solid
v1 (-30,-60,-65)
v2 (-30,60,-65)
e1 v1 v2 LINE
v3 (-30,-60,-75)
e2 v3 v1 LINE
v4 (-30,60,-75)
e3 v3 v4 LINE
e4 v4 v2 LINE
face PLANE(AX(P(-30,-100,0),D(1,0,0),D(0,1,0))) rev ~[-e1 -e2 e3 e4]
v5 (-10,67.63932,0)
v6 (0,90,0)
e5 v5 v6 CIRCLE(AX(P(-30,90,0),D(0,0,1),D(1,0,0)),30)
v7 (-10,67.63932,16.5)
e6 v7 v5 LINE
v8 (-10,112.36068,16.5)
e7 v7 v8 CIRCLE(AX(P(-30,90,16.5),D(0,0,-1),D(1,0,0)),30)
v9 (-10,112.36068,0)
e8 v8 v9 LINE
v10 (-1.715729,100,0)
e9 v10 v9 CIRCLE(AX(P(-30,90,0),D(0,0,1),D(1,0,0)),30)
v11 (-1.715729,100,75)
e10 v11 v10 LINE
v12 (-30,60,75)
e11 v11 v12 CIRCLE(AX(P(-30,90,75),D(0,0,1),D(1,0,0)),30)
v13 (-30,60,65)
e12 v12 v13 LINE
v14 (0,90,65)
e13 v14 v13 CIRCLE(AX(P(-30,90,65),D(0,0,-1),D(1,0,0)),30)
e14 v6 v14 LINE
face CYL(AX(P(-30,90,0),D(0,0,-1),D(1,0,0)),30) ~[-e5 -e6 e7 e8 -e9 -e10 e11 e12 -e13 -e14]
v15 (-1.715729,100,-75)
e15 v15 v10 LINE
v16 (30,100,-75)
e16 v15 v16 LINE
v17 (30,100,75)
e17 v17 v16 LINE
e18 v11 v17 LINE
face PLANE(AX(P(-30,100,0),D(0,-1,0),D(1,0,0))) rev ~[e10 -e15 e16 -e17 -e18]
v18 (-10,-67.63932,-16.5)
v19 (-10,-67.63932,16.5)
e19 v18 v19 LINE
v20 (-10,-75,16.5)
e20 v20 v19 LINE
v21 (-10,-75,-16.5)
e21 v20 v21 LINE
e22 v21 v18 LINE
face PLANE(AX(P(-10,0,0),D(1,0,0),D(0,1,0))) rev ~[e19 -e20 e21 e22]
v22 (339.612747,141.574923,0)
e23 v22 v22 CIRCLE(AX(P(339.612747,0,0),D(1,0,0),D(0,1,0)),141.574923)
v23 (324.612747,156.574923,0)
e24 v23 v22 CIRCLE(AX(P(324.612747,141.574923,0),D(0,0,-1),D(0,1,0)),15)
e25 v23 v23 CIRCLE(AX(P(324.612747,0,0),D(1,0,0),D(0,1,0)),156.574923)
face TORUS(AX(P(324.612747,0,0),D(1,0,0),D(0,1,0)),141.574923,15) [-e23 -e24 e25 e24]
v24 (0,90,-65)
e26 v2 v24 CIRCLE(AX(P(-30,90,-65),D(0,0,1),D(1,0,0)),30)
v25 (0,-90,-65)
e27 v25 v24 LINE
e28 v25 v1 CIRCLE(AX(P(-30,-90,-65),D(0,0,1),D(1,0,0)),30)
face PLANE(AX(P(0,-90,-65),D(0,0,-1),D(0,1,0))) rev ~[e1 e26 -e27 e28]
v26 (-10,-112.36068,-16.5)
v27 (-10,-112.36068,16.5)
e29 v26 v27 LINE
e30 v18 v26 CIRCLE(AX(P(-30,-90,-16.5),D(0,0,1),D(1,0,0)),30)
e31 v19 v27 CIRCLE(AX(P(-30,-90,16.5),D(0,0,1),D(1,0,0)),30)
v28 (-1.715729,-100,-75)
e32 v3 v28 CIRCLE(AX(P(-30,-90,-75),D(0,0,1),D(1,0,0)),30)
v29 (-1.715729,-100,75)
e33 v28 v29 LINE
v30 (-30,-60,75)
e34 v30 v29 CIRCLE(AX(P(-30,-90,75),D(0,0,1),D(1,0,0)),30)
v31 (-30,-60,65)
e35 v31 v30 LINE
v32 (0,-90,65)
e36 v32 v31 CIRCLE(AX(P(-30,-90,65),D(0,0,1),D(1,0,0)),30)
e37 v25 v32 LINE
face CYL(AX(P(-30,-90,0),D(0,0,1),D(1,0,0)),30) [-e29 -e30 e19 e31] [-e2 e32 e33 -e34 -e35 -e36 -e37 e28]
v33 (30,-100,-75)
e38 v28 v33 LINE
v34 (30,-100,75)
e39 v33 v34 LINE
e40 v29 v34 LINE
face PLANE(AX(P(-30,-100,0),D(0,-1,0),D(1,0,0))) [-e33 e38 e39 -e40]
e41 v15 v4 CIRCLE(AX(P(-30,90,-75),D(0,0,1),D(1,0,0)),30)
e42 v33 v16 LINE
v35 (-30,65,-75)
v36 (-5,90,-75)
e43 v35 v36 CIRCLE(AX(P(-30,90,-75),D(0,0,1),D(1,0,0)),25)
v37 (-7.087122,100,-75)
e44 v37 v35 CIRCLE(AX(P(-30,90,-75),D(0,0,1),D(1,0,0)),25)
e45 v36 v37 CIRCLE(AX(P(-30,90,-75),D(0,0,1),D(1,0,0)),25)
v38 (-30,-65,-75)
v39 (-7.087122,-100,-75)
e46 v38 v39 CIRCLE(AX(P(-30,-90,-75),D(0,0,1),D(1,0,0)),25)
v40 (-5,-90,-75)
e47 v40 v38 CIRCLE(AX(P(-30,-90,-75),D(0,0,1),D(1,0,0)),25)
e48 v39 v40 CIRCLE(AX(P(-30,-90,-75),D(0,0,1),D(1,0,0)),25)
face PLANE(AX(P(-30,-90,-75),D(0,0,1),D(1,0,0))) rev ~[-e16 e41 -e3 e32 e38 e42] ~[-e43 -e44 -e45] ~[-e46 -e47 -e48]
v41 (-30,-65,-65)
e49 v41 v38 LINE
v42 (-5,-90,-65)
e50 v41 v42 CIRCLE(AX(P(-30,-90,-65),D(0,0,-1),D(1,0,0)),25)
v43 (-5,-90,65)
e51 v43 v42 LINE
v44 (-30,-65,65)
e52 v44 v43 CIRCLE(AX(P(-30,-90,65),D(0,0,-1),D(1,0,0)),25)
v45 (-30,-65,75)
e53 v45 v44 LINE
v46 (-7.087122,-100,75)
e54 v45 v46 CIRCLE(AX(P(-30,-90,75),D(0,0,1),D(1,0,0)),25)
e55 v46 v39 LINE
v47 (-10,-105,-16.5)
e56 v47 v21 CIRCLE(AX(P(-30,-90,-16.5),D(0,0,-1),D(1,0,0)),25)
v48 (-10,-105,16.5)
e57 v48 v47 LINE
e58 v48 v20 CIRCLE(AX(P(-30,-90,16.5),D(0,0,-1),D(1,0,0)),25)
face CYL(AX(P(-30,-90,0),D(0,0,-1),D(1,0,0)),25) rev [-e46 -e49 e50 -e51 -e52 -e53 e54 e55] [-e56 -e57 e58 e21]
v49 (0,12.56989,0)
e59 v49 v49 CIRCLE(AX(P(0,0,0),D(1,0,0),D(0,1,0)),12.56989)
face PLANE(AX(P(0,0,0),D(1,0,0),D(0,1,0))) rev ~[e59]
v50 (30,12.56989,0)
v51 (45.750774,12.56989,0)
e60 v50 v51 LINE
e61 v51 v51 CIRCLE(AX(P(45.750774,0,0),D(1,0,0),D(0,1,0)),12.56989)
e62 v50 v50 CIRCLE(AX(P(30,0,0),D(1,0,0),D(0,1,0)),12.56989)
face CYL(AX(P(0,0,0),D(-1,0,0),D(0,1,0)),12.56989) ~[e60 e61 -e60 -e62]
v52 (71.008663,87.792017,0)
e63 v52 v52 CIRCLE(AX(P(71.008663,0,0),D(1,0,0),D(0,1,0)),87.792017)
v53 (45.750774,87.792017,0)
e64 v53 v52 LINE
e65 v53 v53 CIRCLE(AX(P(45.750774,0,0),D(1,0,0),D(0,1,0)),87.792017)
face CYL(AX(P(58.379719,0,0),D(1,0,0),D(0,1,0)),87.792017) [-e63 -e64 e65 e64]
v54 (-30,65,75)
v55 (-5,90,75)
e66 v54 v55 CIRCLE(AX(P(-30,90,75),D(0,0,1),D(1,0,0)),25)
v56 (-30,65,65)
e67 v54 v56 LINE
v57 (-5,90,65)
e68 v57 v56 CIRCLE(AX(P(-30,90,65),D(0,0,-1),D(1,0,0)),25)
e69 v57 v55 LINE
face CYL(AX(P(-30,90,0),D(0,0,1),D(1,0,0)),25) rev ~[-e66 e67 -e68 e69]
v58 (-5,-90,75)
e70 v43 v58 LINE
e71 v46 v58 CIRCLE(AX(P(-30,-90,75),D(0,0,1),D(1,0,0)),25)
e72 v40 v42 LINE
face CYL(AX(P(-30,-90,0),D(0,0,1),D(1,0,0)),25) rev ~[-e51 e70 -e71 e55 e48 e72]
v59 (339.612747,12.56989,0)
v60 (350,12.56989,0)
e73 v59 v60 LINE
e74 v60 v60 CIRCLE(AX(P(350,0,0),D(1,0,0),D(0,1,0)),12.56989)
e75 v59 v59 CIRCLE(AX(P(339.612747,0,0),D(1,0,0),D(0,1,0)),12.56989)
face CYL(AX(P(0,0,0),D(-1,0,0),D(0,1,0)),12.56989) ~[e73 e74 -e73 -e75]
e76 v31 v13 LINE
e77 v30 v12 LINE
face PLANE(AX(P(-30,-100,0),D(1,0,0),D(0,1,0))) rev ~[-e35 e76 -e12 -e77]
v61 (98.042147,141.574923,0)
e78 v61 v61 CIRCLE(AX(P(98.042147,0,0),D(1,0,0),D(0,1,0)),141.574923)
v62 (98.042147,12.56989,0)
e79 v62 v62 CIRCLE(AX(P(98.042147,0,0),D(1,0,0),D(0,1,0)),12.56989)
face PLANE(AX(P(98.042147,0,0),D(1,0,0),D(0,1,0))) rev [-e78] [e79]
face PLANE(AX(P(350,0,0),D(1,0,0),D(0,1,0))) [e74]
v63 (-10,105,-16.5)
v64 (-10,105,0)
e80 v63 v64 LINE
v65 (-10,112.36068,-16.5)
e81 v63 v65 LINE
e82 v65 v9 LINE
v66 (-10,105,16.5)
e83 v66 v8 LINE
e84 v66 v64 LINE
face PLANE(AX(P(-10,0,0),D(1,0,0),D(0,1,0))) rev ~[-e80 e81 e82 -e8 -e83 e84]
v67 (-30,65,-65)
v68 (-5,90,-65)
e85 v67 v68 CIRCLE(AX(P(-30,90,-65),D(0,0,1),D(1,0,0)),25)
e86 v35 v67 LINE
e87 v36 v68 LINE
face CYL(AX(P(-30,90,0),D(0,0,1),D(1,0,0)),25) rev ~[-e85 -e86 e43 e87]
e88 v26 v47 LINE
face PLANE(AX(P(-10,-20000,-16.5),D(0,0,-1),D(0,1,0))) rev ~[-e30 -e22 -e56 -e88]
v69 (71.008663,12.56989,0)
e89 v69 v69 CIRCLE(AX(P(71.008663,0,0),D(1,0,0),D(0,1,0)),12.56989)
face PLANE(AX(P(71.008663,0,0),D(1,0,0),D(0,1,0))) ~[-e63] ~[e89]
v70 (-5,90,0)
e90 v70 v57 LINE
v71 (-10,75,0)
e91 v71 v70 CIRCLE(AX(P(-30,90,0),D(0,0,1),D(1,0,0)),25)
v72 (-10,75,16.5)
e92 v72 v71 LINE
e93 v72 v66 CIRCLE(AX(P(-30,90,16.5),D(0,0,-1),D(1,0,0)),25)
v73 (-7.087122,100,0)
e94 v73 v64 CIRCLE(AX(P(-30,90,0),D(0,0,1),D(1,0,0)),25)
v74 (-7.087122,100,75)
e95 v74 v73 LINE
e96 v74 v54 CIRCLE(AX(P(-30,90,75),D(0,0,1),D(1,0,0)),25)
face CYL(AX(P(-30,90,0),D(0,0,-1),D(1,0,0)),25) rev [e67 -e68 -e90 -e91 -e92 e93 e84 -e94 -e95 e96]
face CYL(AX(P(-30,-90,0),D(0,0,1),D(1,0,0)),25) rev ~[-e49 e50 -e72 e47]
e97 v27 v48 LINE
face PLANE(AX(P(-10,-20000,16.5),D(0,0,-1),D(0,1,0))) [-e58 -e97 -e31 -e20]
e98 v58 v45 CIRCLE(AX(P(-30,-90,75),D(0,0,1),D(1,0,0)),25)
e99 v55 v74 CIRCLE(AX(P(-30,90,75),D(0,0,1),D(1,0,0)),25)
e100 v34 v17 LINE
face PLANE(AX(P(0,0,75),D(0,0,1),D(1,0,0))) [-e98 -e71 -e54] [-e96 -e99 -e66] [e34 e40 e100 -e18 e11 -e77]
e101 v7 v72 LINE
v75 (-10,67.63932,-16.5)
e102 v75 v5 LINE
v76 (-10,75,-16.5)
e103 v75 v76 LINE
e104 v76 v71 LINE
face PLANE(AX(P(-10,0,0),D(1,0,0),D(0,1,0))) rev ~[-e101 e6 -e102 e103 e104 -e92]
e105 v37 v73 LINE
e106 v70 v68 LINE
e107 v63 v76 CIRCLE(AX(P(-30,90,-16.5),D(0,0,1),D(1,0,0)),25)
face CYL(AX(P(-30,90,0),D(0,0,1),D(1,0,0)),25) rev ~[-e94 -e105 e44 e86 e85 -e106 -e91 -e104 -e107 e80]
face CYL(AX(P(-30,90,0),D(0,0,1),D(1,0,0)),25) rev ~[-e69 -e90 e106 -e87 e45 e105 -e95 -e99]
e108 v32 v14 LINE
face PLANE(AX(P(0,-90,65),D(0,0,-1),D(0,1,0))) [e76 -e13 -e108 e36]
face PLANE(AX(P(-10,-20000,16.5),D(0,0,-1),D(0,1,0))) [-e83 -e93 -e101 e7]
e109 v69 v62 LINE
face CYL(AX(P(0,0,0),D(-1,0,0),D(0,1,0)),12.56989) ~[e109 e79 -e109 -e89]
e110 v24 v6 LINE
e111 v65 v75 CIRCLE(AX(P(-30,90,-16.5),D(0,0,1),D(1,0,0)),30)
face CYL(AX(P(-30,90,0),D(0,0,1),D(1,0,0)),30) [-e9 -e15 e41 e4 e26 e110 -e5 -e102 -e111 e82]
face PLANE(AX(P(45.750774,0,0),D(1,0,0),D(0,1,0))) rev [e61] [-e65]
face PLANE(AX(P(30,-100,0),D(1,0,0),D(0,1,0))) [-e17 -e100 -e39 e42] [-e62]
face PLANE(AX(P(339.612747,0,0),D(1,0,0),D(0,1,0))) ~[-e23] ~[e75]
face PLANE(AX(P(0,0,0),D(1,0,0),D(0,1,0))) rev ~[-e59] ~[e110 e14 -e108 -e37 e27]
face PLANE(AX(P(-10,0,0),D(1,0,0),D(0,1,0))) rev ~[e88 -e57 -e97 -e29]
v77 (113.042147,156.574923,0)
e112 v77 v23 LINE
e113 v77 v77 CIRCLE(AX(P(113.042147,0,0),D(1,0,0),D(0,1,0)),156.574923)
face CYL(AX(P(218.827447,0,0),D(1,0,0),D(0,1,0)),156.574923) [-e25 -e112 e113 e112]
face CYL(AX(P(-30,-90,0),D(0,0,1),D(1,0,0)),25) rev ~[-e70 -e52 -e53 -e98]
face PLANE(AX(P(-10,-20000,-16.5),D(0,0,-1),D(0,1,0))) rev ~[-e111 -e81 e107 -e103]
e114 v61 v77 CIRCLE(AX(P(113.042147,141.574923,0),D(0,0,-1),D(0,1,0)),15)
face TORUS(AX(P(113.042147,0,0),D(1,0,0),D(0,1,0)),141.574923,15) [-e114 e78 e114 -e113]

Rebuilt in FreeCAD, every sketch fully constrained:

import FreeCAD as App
import Part
import Sketcher

V = App.Vector


def edges_at(feature, points):
    """Names of the edges that pass closest to the given points."""
    edges = feature.Shape.Edges
    near = lambda p: min(range(len(edges)), key=lambda i: edges[i].distToShape(Part.Vertex(*p))[0])
    return sorted({f"Edge{near(p) + 1}" for p in points})


def add_polygon(sketch, points):
    """Adds a closed chain of lines whose ends are joined by coincident constraints."""
    first, n = sketch.GeometryCount, len(points)
    for a, b in zip(points, points[1:] + points[:1]):
        sketch.addGeometry(Part.LineSegment(App.Vector(*a, 0), App.Vector(*b, 0)), False)
    for i in range(n):
        sketch.addConstraint(Sketcher.Constraint("Coincident", first + i, 2, first + (i + 1) % n, 1))

doc = App.newDocument("Part")
params = doc.addObject("Spreadsheet::Sheet", "Params")
for row, (alias, value) in enumerate([
    ("revolution_angle", "360 deg"),
    ("revolution2_angle", "360 deg"),
    ("sketch3_width", "60 mm"),
    ("sketch3_height", "200 mm"),
    ("pad1_length", "150 mm"),
    ("pad2_length", "10000 mm"),
    ("sketch5_width", "180 mm"),
    ("sketch5_height", "130 mm"),
    ("pocket1_length", "6000 mm"),
    ("sketch6_diameter", "60 mm"),
    ("sketch6_diameter2", "50 mm"),
    ("pad3_length", "150 mm"),
    ("sketch7_width", "40000 mm"),
    ("sketch7_height", "33 mm"),
    ("pocket2_length", "15000 mm"),
    ("sketch8_diameter", "50 mm"),
    ("pocket3_length", "2000 mm"),
    ("sketch9_diameter", "50 mm"),
    ("pocket4_length", "2000 mm"),
    ("pad4_length", "350 mm"),
    ("fillet_radius", "15 mm"),
], start=1):
    params.set(f"A{row}", alias)
    params.set(f"B{row}", "=" + value)
    params.setAlias(f"B{row}", alias)

body = doc.addObject("PartDesign::Body", "Body")

# Sketch on XY plane
sketch1 = body.newObject("Sketcher::SketchObject", "Sketch")
sketch1.AttachmentSupport = (doc.getObject("XY_Plane"), [""])
sketch1.MapMode = "FlatFace"
add_polygon(sketch1, [(46, 88), (46, 0), (71, 0), (71, 88)])  # lines 0-3
sketch1.addConstraint([
    Sketcher.Constraint("Vertical", 0),
    Sketcher.Constraint("Horizontal", 1),
    Sketcher.Constraint("Vertical", 2),
    Sketcher.Constraint("Horizontal", 3),
    Sketcher.Constraint("PointOnObject", 0, 2, -1),
    Sketcher.Constraint("DistanceX", 1, 1, 1, 2, 25.257889),
    Sketcher.Constraint("DistanceY", 0, 2, 0, 1, 87.792017),
    Sketcher.Constraint("DistanceX", -1, 1, 0, 2, 45.750774),
])
revolution = body.newObject("PartDesign::Revolution", "Revolution")
revolution.Profile = sketch1
revolution.ReferenceAxis = (sketch1, ["H_Axis"])
revolution.setExpression("Angle", "Params.revolution_angle")
body2 = doc.addObject("PartDesign::Body", "Body001")

# Sketch on XY plane
sketch2 = body2.newObject("Sketcher::SketchObject", "Sketch001")
sketch2.AttachmentSupport = (doc.getObject("XY_Plane001"), [""])
sketch2.MapMode = "FlatFace"
add_polygon(sketch2, [(98, 157), (98, 0), (340, 0), (340, 157)])  # lines 0-3
sketch2.addConstraint([
    Sketcher.Constraint("Vertical", 0),
    Sketcher.Constraint("Horizontal", 1),
    Sketcher.Constraint("Vertical", 2),
    Sketcher.Constraint("Horizontal", 3),
    Sketcher.Constraint("PointOnObject", 0, 2, -1),
    Sketcher.Constraint("DistanceX", 1, 1, 1, 2, 241.5706),
    Sketcher.Constraint("DistanceY", 0, 2, 0, 1, 156.574923),
    Sketcher.Constraint("DistanceX", -1, 1, 0, 2, 98.042147),
])
revolution2 = body2.newObject("PartDesign::Revolution", "Revolution001")
revolution2.Profile = sketch2
revolution2.ReferenceAxis = (sketch2, ["H_Axis"])
revolution2.setExpression("Angle", "Params.revolution2_angle")
body3 = doc.addObject("PartDesign::Body", "Body002")

# Sketch on XY plane
sketch3 = body3.newObject("Sketcher::SketchObject", "Sketch002")
sketch3.AttachmentSupport = (doc.getObject("XY_Plane002"), [""])
sketch3.MapMode = "FlatFace"
add_polygon(sketch3, [(-30, 100), (-30, -100), (30, -100), (30, 100)])  # lines 0-3
sketch3.addConstraint([
    Sketcher.Constraint("Vertical", 0),
    Sketcher.Constraint("Horizontal", 1),
    Sketcher.Constraint("Vertical", 2),
    Sketcher.Constraint("Horizontal", 3),
    Sketcher.Constraint("Symmetric", 0, 2, 2, 2, -1, 1),
    Sketcher.Constraint("DistanceX", 1, 1, 1, 2, 60.0),
    Sketcher.Constraint("DistanceY", 0, 2, 0, 1, 200.0),
])
sketch3.setExpression("Constraints[9]", "Params.sketch3_width")
sketch3.setExpression("Constraints[10]", "Params.sketch3_height")
pad1 = body3.newObject("PartDesign::Pad", "Pad")
pad1.Profile = sketch3
pad1.setExpression("Length", "Params.pad1_length")
pad1.Midplane = True
body4 = doc.addObject("PartDesign::Body", "Body003")

# Sketch on YZ plane
sketch4 = body4.newObject("Sketcher::SketchObject", "Sketch003")
sketch4.AttachmentSupport = (doc.getObject("YZ_Plane003"), [""])
sketch4.MapMode = "FlatFace"
sketch4.addGeometry(Part.Circle(V(0, 0, 0), V(0, 0, 1), 13), False)
sketch4.addConstraint([
    Sketcher.Constraint("Coincident", 0, 3, -1, 1),
    Sketcher.Constraint("Diameter", 0, 25.139779),
])
pad2 = body4.newObject("PartDesign::Pad", "Pad001")
pad2.Profile = sketch4
pad2.setExpression("Length", "Params.pad2_length")
pad2.Midplane = True
doc.recompute()

body5 = doc.addObject("PartDesign::Body", "Body004")
body5.BaseFeature = body4
boolean = body.newObject("PartDesign::Boolean", "Boolean")
boolean.Type = "Cut"
boolean.addObjects([body5])
doc.recompute()

body6 = doc.addObject("PartDesign::Body", "Body005")
body6.BaseFeature = body4
boolean2 = body2.newObject("PartDesign::Boolean", "Boolean001")
boolean2.Type = "Cut"
boolean2.addObjects([body6])
doc.recompute()

boolean3 = body3.newObject("PartDesign::Boolean", "Boolean002")
boolean3.Type = "Cut"
boolean3.addObjects([body4])

# Sketch on YZ plane
sketch5 = body3.newObject("Sketcher::SketchObject", "Sketch004")
sketch5.AttachmentSupport = (doc.getObject("YZ_Plane002"), [""])
sketch5.MapMode = "FlatFace"
add_polygon(sketch5, [(-90, 65), (-90, -65), (90, -65), (90, 65)])  # lines 0-3
sketch5.addConstraint([
    Sketcher.Constraint("Vertical", 0),
    Sketcher.Constraint("Horizontal", 1),
    Sketcher.Constraint("Vertical", 2),
    Sketcher.Constraint("Horizontal", 3),
    Sketcher.Constraint("Symmetric", 0, 2, 2, 2, -1, 1),
    Sketcher.Constraint("DistanceX", 1, 1, 1, 2, 180.0),
    Sketcher.Constraint("DistanceY", 0, 2, 0, 1, 130.0),
])
sketch5.setExpression("Constraints[9]", "Params.sketch5_width")
sketch5.setExpression("Constraints[10]", "Params.sketch5_height")
pocket1 = body3.newObject("PartDesign::Pocket", "Pocket")
pocket1.Profile = sketch5
pocket1.setExpression("Length", "Params.pocket1_length")

# Sketch on XY plane
sketch6 = body3.newObject("Sketcher::SketchObject", "Sketch005")
sketch6.AttachmentSupport = (doc.getObject("XY_Plane002"), [""])
sketch6.MapMode = "FlatFace"
sketch6.addGeometry([
    Part.Circle(V(-30, 90, 0), V(0, 0, 1), 30),
    Part.Circle(V(-30, 90, 0), V(0, 0, 1), 25),
    Part.Circle(V(-30, -90, 0), V(0, 0, 1), 30),
    Part.Circle(V(-30, -90, 0), V(0, 0, 1), 25),
], False)
sketch6.addConstraint([
    Sketcher.Constraint("Coincident", 1, 3, 0, 3),
    Sketcher.Constraint("Coincident", 3, 3, 2, 3),
    Sketcher.Constraint("Equal", 0, 2),
    Sketcher.Constraint("Equal", 1, 3),
    Sketcher.Constraint("Symmetric", 0, 3, 2, 3, -1),
    Sketcher.Constraint("Diameter", 0, 60.0),
    Sketcher.Constraint("Diameter", 1, 50.0),
    Sketcher.Constraint("DistanceX", 0, 3, -1, 1, 30.0),
    Sketcher.Constraint("DistanceY", -1, 1, 0, 3, 90.0),
])
sketch6.setExpression("Constraints[5]", "Params.sketch6_diameter")
sketch6.setExpression("Constraints[6]", "Params.sketch6_diameter2")
pad3 = body3.newObject("PartDesign::Pad", "Pad002")
pad3.Profile = sketch6
pad3.setExpression("Length", "Params.pad3_length")
pad3.Midplane = True

# Sketch on YZ plane
sketch7 = body3.newObject("Sketcher::SketchObject", "Sketch006")
sketch7.AttachmentSupport = (doc.getObject("YZ_Plane002"), [""])
sketch7.MapMode = "FlatFace"
sketch7.AttachmentOffset = App.Placement(V(0, 0, -10), App.Rotation())
add_polygon(sketch7, [(-20000, 16), (-20000, -16), (20000, -16), (20000, 16)])  # lines 0-3
sketch7.addConstraint([
    Sketcher.Constraint("Vertical", 0),
    Sketcher.Constraint("Horizontal", 1),
    Sketcher.Constraint("Vertical", 2),
    Sketcher.Constraint("Horizontal", 3),
    Sketcher.Constraint("Symmetric", 0, 2, 2, 2, -1, 1),
    Sketcher.Constraint("DistanceX", 1, 1, 1, 2, 40000.0),
    Sketcher.Constraint("DistanceY", 0, 2, 0, 1, 33.0),
])
sketch7.setExpression("Constraints[9]", "Params.sketch7_width")
sketch7.setExpression("Constraints[10]", "Params.sketch7_height")
pocket2 = body3.newObject("PartDesign::Pocket", "Pocket001")
pocket2.Profile = sketch7
pocket2.setExpression("Length", "Params.pocket2_length")

# Sketch on XY plane
sketch8 = body3.newObject("Sketcher::SketchObject", "Sketch007")
sketch8.AttachmentSupport = (doc.getObject("XY_Plane002"), [""])
sketch8.MapMode = "FlatFace"
sketch8.addGeometry(Part.Circle(V(-30, 90, 0), V(0, 0, 1), 25), False)
sketch8.addConstraint([
    Sketcher.Constraint("Diameter", 0, 50.0),
    Sketcher.Constraint("DistanceX", 0, 3, -1, 1, 30.0),
    Sketcher.Constraint("DistanceY", -1, 1, 0, 3, 90.0),
])
sketch8.setExpression("Constraints[0]", "Params.sketch8_diameter")
pocket3 = body3.newObject("PartDesign::Pocket", "Pocket002")
pocket3.Profile = sketch8
pocket3.setExpression("Length", "Params.pocket3_length")
pocket3.Midplane = True

# Sketch on XY plane
sketch9 = body3.newObject("Sketcher::SketchObject", "Sketch008")
sketch9.AttachmentSupport = (doc.getObject("XY_Plane002"), [""])
sketch9.MapMode = "FlatFace"
sketch9.addGeometry(Part.Circle(V(-30, -90, 0), V(0, 0, 1), 25), False)
sketch9.addConstraint([
    Sketcher.Constraint("Diameter", 0, 50.0),
    Sketcher.Constraint("DistanceX", 0, 3, -1, 1, 30.0),
    Sketcher.Constraint("DistanceY", 0, 3, -1, 1, 90.0),
])
sketch9.setExpression("Constraints[0]", "Params.sketch9_diameter")
pocket4 = body3.newObject("PartDesign::Pocket", "Pocket003")
pocket4.Profile = sketch9
pocket4.setExpression("Length", "Params.pocket4_length")
pocket4.Midplane = True
body.AllowCompound = True
doc.recompute()

boolean4 = body.newObject("PartDesign::Boolean", "Boolean003")
boolean4.Type = "Fuse"
boolean4.addObjects([body2])
doc.recompute()

boolean5 = body.newObject("PartDesign::Boolean", "Boolean004")
boolean5.Type = "Fuse"
boolean5.addObjects([body3])

# Sketch on YZ plane
sketch10 = body.newObject("Sketcher::SketchObject", "Sketch009")
sketch10.AttachmentSupport = (doc.getObject("YZ_Plane"), [""])
sketch10.MapMode = "FlatFace"
sketch10.addGeometry(Part.Circle(V(0, 0, 0), V(0, 0, 1), 13), False)
sketch10.addConstraint([
    Sketcher.Constraint("Coincident", 0, 3, -1, 1),
    Sketcher.Constraint("Diameter", 0, 25.139779),
])
pad4 = body.newObject("PartDesign::Pad", "Pad003")
pad4.Profile = sketch10
pad4.setExpression("Length", "Params.pad4_length")
doc.recompute()

fillet = body.newObject("PartDesign::Fillet", "Fillet")
fillet.Base = (pad4, edges_at(pad4, [(339.613, -156.575, 0), (98.042, -156.575, 0)]))
fillet.setExpression("Radius", "Params.fillet_radius")

doc.recompute()
